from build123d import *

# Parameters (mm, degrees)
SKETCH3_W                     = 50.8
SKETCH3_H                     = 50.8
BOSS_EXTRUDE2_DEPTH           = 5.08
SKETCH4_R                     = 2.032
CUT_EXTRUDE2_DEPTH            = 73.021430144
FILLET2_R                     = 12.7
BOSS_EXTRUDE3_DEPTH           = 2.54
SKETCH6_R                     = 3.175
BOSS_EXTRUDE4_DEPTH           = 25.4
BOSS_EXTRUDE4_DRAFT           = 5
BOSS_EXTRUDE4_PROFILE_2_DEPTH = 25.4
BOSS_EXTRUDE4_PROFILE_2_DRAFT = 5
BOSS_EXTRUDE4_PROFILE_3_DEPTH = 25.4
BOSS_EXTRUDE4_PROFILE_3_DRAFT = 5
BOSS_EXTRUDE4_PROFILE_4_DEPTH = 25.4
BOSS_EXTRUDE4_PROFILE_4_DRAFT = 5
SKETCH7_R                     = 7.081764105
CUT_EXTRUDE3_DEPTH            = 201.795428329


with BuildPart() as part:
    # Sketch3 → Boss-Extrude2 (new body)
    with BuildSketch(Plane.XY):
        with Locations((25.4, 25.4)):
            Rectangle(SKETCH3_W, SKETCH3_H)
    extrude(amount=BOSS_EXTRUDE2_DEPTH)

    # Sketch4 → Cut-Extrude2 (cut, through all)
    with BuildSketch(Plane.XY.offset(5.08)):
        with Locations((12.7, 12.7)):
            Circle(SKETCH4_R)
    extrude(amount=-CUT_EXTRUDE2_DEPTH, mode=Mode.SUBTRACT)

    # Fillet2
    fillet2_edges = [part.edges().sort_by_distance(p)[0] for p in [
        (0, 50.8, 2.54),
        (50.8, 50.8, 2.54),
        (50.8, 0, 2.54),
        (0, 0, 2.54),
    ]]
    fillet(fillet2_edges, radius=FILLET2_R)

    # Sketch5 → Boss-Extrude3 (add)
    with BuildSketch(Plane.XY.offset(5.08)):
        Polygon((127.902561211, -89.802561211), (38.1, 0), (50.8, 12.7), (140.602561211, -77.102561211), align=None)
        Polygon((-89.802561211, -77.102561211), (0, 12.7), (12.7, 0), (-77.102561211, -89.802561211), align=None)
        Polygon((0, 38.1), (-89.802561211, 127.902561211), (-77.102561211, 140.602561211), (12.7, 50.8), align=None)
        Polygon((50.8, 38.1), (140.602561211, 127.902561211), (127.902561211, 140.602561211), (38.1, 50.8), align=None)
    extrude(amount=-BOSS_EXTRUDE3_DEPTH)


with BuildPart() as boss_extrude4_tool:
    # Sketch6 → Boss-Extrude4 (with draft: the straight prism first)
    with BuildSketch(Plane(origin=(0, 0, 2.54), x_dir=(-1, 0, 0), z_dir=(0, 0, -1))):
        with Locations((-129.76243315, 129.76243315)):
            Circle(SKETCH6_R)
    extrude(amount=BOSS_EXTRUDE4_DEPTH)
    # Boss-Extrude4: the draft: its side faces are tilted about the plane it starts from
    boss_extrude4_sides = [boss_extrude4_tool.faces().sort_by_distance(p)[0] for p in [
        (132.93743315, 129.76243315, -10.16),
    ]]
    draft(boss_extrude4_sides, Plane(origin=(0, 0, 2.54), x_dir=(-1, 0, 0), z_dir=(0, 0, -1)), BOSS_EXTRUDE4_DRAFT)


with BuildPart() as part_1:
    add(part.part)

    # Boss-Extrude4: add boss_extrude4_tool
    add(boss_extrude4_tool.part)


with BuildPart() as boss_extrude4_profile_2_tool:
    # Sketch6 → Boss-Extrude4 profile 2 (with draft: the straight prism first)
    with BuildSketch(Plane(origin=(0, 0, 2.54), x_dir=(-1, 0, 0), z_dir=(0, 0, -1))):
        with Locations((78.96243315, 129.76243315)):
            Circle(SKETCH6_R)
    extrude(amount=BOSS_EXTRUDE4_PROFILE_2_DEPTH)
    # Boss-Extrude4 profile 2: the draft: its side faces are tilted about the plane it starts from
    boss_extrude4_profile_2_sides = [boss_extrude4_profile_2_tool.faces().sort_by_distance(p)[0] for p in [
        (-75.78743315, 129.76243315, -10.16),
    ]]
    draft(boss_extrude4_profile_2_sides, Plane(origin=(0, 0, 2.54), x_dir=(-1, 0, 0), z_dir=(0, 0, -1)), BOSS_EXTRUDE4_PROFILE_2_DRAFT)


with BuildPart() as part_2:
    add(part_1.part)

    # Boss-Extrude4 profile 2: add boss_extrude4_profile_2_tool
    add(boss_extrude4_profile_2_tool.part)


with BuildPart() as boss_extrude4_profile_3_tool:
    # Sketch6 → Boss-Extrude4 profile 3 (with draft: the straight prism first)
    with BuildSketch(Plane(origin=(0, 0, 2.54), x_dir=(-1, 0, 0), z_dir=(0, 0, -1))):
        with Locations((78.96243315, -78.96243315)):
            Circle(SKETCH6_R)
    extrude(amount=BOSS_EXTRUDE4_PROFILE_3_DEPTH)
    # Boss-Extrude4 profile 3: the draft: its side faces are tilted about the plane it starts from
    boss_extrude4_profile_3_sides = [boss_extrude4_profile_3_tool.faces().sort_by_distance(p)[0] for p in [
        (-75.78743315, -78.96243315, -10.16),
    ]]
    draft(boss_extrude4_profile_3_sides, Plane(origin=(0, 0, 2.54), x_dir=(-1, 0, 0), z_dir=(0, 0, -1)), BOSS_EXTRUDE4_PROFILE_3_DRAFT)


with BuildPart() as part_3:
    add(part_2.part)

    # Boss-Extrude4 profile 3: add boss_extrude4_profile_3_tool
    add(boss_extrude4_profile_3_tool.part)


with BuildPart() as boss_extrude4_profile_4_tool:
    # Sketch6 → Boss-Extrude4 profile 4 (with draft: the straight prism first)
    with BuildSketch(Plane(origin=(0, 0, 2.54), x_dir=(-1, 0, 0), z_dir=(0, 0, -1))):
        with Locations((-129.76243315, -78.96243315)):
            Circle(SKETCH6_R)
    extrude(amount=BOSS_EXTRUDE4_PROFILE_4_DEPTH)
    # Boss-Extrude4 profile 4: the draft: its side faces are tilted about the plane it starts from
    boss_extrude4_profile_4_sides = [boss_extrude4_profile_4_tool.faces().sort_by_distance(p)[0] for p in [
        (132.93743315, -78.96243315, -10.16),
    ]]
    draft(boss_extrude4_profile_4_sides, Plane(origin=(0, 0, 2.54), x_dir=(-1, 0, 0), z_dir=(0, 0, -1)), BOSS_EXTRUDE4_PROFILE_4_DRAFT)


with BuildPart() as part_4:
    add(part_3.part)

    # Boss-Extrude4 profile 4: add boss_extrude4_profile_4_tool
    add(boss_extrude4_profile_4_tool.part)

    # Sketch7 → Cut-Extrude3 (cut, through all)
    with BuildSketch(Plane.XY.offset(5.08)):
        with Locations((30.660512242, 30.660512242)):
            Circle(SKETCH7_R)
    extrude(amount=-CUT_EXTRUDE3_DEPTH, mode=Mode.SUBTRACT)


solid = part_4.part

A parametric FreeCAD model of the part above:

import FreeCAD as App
import Part
import Sketcher

V = App.Vector
Q = App.Units.Quantity


def edges_at(feature, points):
    """Names of the edges that pass closest to the given points."""
    edges = feature.Shape.Edges
    near = lambda p: min(range(len(edges)), key=lambda i: edges[i].distToShape(Part.Vertex(*p))[0])
    return sorted({f"Edge{near(p) + 1}" for p in points})


def faces_at(feature, points):
    """Names of the faces that lie closest to the given points."""
    faces = feature.Shape.Faces
    near = lambda p: min(range(len(faces)), key=lambda i: faces[i].distToShape(Part.Vertex(*p))[0])
    return sorted({f"Face{near(p) + 1}" for p in points})


def add_polygon(sketch, points):
    """Adds a closed chain of lines whose ends are joined by coincident constraints."""
    first, n = sketch.GeometryCount, len(points)
    for a, b in zip(points, points[1:] + points[:1]):
        sketch.addGeometry(Part.LineSegment(App.Vector(*a, 0), App.Vector(*b, 0)), False)
    for i in range(n):
        sketch.addConstraint(Sketcher.Constraint("Coincident", first + i, 2, first + (i + 1) % n, 1))

doc = App.newDocument("Part")
params = doc.addObject("Spreadsheet::Sheet", "Params")
for row, (alias, value) in enumerate([
    ("sketch1_width", "2 in"),
    ("pad1_length", "0.2 in"),
    ("sketch2_diameter", "0.16 in"),
    ("fillet_radius", "0.5 in"),
    ("sketch3_length", "5 in"),
    ("pad2_length", "0.1 in"),
    ("sketch4_diameter", "0.25 in"),
    ("pad3_length", "1 in"),
    ("draft_angle", "5 deg"),
    ("sketch5_diameter", "0.25 in"),
    ("pad4_length", "1 in"),
    ("draft2_angle", "5 deg"),
    ("sketch6_diameter", "0.25 in"),
    ("pad5_length", "1 in"),
    ("draft3_angle", "5 deg"),
    ("sketch7_diameter", "0.25 in"),
    ("pad6_length", "1 in"),
    ("draft4_angle", "5 deg"),
], start=1):
    params.set(f"A{row}", alias)
    params.set(f"B{row}", "=" + value)
    params.setAlias(f"B{row}", alias)

body = doc.addObject("PartDesign::Body", "Body")

sketch1 = body.newObject("Sketcher::SketchObject", "Sketch")
sketch1.AttachmentSupport = (doc.getObject("XY_Plane"), [""])
sketch1.MapMode = "FlatFace"
add_polygon(sketch1, [(0, 51), (0, 0), (51, 0), (51, 51)])
sketch1.addConstraint(Sketcher.Constraint("Vertical", 0))
sketch1.addConstraint(Sketcher.Constraint("Horizontal", 1))
sketch1.addConstraint(Sketcher.Constraint("Vertical", 2))
sketch1.addConstraint(Sketcher.Constraint("Horizontal", 3))
sketch1.addConstraint(Sketcher.Constraint("Coincident", 0, 2, -1, 1))
sketch1.addConstraint(Sketcher.Constraint("Equal", 3, 0))
sketch1.addConstraint(Sketcher.Constraint("DistanceX", 1, 1, 1, 2, Q("2 in")))
sketch1.setExpression("Constraints[10]", "Params.sketch1_width")
pad1 = body.newObject("PartDesign::Pad", "Pad")
pad1.Profile = sketch1
pad1.setExpression("Length", "Params.pad1_length")

sketch2 = body.newObject("Sketcher::SketchObject", "Sketch001")
sketch2.AttachmentSupport = (doc.getObject("XY_Plane"), [""])
sketch2.MapMode = "FlatFace"
sketch2.AttachmentOffset = App.Placement(V(0, 0, 0.2 * 25.4), App.Rotation())
sketch2.addGeometry(Part.Circle(V(12.7, 12.7, 0), V(0, 0, 1), 2), False)
sketch2.addConstraint(Sketcher.Constraint("Diameter", 0, Q("0.16 in")))
sketch2.addConstraint(Sketcher.Constraint("DistanceX", -1, 1, 0, 3, Q("0.5 in")))
sketch2.addConstraint(Sketcher.Constraint("DistanceY", -1, 1, 0, 3, Q("0.5 in")))
sketch2.setExpression("Constraints[0]", "Params.sketch2_diameter")
pocket1 = body.newObject("PartDesign::Pocket", "Pocket")
pocket1.Profile = sketch2
pocket1.Type = "ThroughAll"
doc.recompute()

fillet = body.newObject("PartDesign::Fillet", "Fillet")
fillet.Base = (pocket1, edges_at(pocket1, [
    (0, 50.8, 2.54),
    (50.8, 50.8, 2.54),
    (50.8, 0, 2.54),
    (0, 0, 2.54),
]))
fillet.setExpression("Radius", "Params.fillet_radius")

sketch3 = body.newObject("Sketcher::SketchObject", "Sketch002")
sketch3.AttachmentSupport = (doc.getObject("XY_Plane"), [""])
sketch3.MapMode = "FlatFace"
sketch3.AttachmentOffset = App.Placement(V(0, 0, 0.2 * 25.4), App.Rotation())
add_polygon(sketch3, [(38, 0), (128, -90), (141, -77), (51, 13)])
add_polygon(sketch3, [(0, 13), (-90, -77), (-77, -90), (13, 0)])
add_polygon(sketch3, [(-90, 128), (0, 38), (13, 51), (-77, 141)])
add_polygon(sketch3, [(51, 38), (141, 128), (128, 141), (38, 51)])
sketch3.addConstraint(Sketcher.Constraint("PointOnObject", 3, 2, -1))
sketch3.addConstraint(Sketcher.Constraint("PointOnObject", 6, 2, -1))
sketch3.addConstraint(Sketcher.Constraint("PointOnObject", 7, 2, -2))
sketch3.addConstraint(Sketcher.Constraint("PointOnObject", 8, 2, -2))
sketch3.addConstraint(Sketcher.Constraint("Perpendicular", 0, 1))
sketch3.addConstraint(Sketcher.Constraint("Perpendicular", 1, 2))
sketch3.addConstraint(Sketcher.Constraint("Perpendicular", 2, 3))
sketch3.addConstraint(Sketcher.Constraint("Parallel", 3, 4))
sketch3.addConstraint(Sketcher.Constraint("Perpendicular", 4, 5))
sketch3.addConstraint(Sketcher.Constraint("Perpendicular", 5, 6))
sketch3.addConstraint(Sketcher.Constraint("Perpendicular", 6, 7))
sketch3.addConstraint(Sketcher.Constraint("Parallel", 7, 8))
sketch3.addConstraint(Sketcher.Constraint("Perpendicular", 8, 9))
sketch3.addConstraint(Sketcher.Constraint("Perpendicular", 9, 10))
sketch3.addConstraint(Sketcher.Constraint("Perpendicular", 10, 11))
sketch3.addConstraint(Sketcher.Constraint("Parallel", 11, 12))
sketch3.addConstraint(Sketcher.Constraint("Perpendicular", 12, 13))
sketch3.addConstraint(Sketcher.Constraint("Perpendicular", 13, 14))
sketch3.addConstraint(Sketcher.Constraint("Perpendicular", 14, 15))
sketch3.addConstraint(Sketcher.Constraint("Horizontal", 1, 2, 4, 2))
sketch3.addConstraint(Sketcher.Constraint("Horizontal", 0, 2, 5, 2))
sketch3.addConstraint(Sketcher.Constraint("Horizontal", 11, 2, 12, 2))
sketch3.addConstraint(Sketcher.Constraint("Horizontal", 10, 2, 13, 2))
sketch3.addConstraint(Sketcher.Constraint("Horizontal", 9, 2, 14, 2))
sketch3.addConstraint(Sketcher.Constraint("Vertical", 6, 2, 9, 2))
sketch3.addConstraint(Sketcher.Constraint("Vertical", 5, 2, 10, 2))
sketch3.addConstraint(Sketcher.Constraint("Vertical", 1, 2, 12, 2))
sketch3.addConstraint(Sketcher.Constraint("Vertical", 0, 2, 13, 2))
sketch3.addConstraint(Sketcher.Constraint("Distance", 0, Q("5 in")))
sketch3.addConstraint(Sketcher.Constraint("DistanceX", -1, 1, 2, 2, Q("2 in")))
sketch3.addConstraint(Sketcher.Constraint("DistanceY", -1, 1, 9, 2, Q("2 in")))
sketch3.addConstraint(Sketcher.Constraint("DistanceX", 6, 2, 3, 2, Q("1 in")))
sketch3.setExpression("Constraints[44]", "Params.sketch3_length")
pad2 = body.newObject("PartDesign::Pad", "Pad001")
pad2.Profile = sketch3
pad2.setExpression("Length", "Params.pad2_length")
pad2.Reversed = True
body2 = doc.addObject("PartDesign::Body", "Body001")

sketch4 = body2.newObject("Sketcher::SketchObject", "Sketch003")
sketch4.AttachmentSupport = (doc.getObject("XY_Plane001"), [""])
sketch4.MapMode = "FlatFace"
sketch4.AttachmentOffset = App.Placement(V(0, 0, 0.1 * 25.4), App.Rotation())
sketch4.addGeometry(Part.Circle(V(129.8, 129.8, 0), V(0, 0, 1), 3.2), False)
sketch4.addConstraint(Sketcher.Constraint("Diameter", 0, Q("0.25 in")))
sketch4.addConstraint(Sketcher.Constraint("DistanceX", -1, 1, 0, 3, 129.762433))
sketch4.addConstraint(Sketcher.Constraint("DistanceY", -1, 1, 0, 3, 129.762433))
sketch4.setExpression("Constraints[0]", "Params.sketch4_diameter")
pad3 = body2.newObject("PartDesign::Pad", "Pad002")
pad3.Profile = sketch4
pad3.setExpression("Length", "Params.pad3_length")
pad3.Reversed = True
doc.recompute()

datumplane = body2.newObject("PartDesign::Plane", "DatumPlane")
datumplane.AttachmentSupport = (doc.getObject("XY_Plane001"), [""])
datumplane.MapMode = "FlatFace"
datumplane.AttachmentOffset = App.Placement(V(0, 0, 0.1 * 25.4), App.Rotation())
draft = body2.newObject("PartDesign::Draft", "Draft")
draft.Base = (pad3, faces_at(pad3, [(132.937, 129.762, -10.16)]))
draft.NeutralPlane = (datumplane, [""])
draft.setExpression("Angle", "Params.draft_angle")
draft.Reversed = True
doc.recompute()

boolean = body.newObject("PartDesign::Boolean", "Boolean")
boolean.Type = "Fuse"
boolean.addObjects([body2])
body3 = doc.addObject("PartDesign::Body", "Body002")

sketch5 = body3.newObject("Sketcher::SketchObject", "Sketch004")
sketch5.AttachmentSupport = (doc.getObject("XY_Plane002"), [""])
sketch5.MapMode = "FlatFace"
sketch5.AttachmentOffset = App.Placement(V(0, 0, 0.1 * 25.4), App.Rotation())
sketch5.addGeometry(Part.Circle(V(-79, 129.8, 0), V(0, 0, 1), 3.2), False)
sketch5.addConstraint(Sketcher.Constraint("Diameter", 0, Q("0.25 in")))
sketch5.addConstraint(Sketcher.Constraint("DistanceX", 0, 3, -1, 1, 78.962433))
sketch5.addConstraint(Sketcher.Constraint("DistanceY", -1, 1, 0, 3, 129.762433))
sketch5.setExpression("Constraints[0]", "Params.sketch5_diameter")
pad4 = body3.newObject("PartDesign::Pad", "Pad003")
pad4.Profile = sketch5
pad4.setExpression("Length", "Params.pad4_length")
pad4.Reversed = True
doc.recompute()

datumplane2 = body3.newObject("PartDesign::Plane", "DatumPlane001")
datumplane2.AttachmentSupport = (doc.getObject("XY_Plane002"), [""])
datumplane2.MapMode = "FlatFace"
datumplane2.AttachmentOffset = App.Placement(V(0, 0, 0.1 * 25.4), App.Rotation())
draft2 = body3.newObject("PartDesign::Draft", "Draft001")
draft2.Base = (pad4, faces_at(pad4, [(-75.787, 129.762, -10.16)]))
draft2.NeutralPlane = (datumplane2, [""])
draft2.setExpression("Angle", "Params.draft2_angle")
draft2.Reversed = True
doc.recompute()

boolean2 = body.newObject("PartDesign::Boolean", "Boolean001")
boolean2.Type = "Fuse"
boolean2.addObjects([body3])
body4 = doc.addObject("PartDesign::Body", "Body003")

sketch6 = body4.newObject("Sketcher::SketchObject", "Sketch005")
sketch6.AttachmentSupport = (doc.getObject("XY_Plane003"), [""])
sketch6.MapMode = "FlatFace"
sketch6.AttachmentOffset = App.Placement(V(0, 0, 0.1 * 25.4), App.Rotation())
sketch6.addGeometry(Part.Circle(V(-79, -79, 0), V(0, 0, 1), 3.2), False)
sketch6.addConstraint(Sketcher.Constraint("Diameter", 0, Q("0.25 in")))
sketch6.addConstraint(Sketcher.Constraint("DistanceX", 0, 3, -1, 1, 78.962433))
sketch6.addConstraint(Sketcher.Constraint("DistanceY", 0, 3, -1, 1, 78.962433))
sketch6.setExpression("Constraints[0]", "Params.sketch6_diameter")
pad5 = body4.newObject("PartDesign::Pad", "Pad004")
pad5.Profile = sketch6
pad5.setExpression("Length", "Params.pad5_length")
pad5.Reversed = True
doc.recompute()

datumplane3 = body4.newObject("PartDesign::Plane", "DatumPlane002")
datumplane3.AttachmentSupport = (doc.getObject("XY_Plane003"), [""])
datumplane3.MapMode = "FlatFace"
datumplane3.AttachmentOffset = App.Placement(V(0, 0, 0.1 * 25.4), App.Rotation())
draft3 = body4.newObject("PartDesign::Draft", "Draft002")
draft3.Base = (pad5, faces_at(pad5, [(-75.787, -78.962, -10.16)]))
draft3.NeutralPlane = (datumplane3, [""])
draft3.setExpression("Angle", "Params.draft3_angle")
draft3.Reversed = True
doc.recompute()

boolean3 = body.newObject("PartDesign::Boolean", "Boolean002")
boolean3.Type = "Fuse"
boolean3.addObjects([body4])
body5 = doc.addObject("PartDesign::Body", "Body004")

sketch7 = body5.newObject("Sketcher::SketchObject", "Sketch006")
sketch7.AttachmentSupport = (doc.getObject("XY_Plane004"), [""])
sketch7.MapMode = "FlatFace"
sketch7.AttachmentOffset = App.Placement(V(0, 0, 0.1 * 25.4), App.Rotation())
sketch7.addGeometry(Part.Circle(V(129.8, -79, 0), V(0, 0, 1), 3.2), False)
sketch7.addConstraint(Sketcher.Constraint("Diameter", 0, Q("0.25 in")))
sketch7.addConstraint(Sketcher.Constraint("DistanceX", -1, 1, 0, 3, 129.762433))
sketch7.addConstraint(Sketcher.Constraint("DistanceY", 0, 3, -1, 1, 78.962433))
sketch7.setExpression("Constraints[0]", "Params.sketch7_diameter")
pad6 = body5.newObject("PartDesign::Pad", "Pad005")
pad6.Profile = sketch7
pad6.setExpression("Length", "Params.pad6_length")
pad6.Reversed = True
doc.recompute()

datumplane4 = body5.newObject("PartDesign::Plane", "DatumPlane003")
datumplane4.AttachmentSupport = (doc.getObject("XY_Plane004"), [""])
datumplane4.MapMode = "FlatFace"
datumplane4.AttachmentOffset = App.Placement(V(0, 0, 0.1 * 25.4), App.Rotation())
draft4 = body5.newObject("PartDesign::Draft", "Draft003")
draft4.Base = (pad6, faces_at(pad6, [(132.937, -78.962, -10.16)]))
draft4.NeutralPlane = (datumplane4, [""])
draft4.setExpression("Angle", "Params.draft4_angle")
draft4.Reversed = True
doc.recompute()

boolean4 = body.newObject("PartDesign::Boolean", "Boolean003")
boolean4.Type = "Fuse"
boolean4.addObjects([body5])

sketch8 = body.newObject("Sketcher::SketchObject", "Sketch007")
sketch8.AttachmentSupport = (doc.getObject("XY_Plane"), [""])
sketch8.MapMode = "FlatFace"
sketch8.AttachmentOffset = App.Placement(V(0, 0, 0.2 * 25.4), App.Rotation())
sketch8.addGeometry(Part.Circle(V(31, 31, 0), V(0, 0, 1), 7), False)
sketch8.addConstraint(Sketcher.Constraint("Diameter", 0, 14.163528))
sketch8.addConstraint(Sketcher.Constraint("DistanceX", -1, 1, 0, 3, 30.660512))
sketch8.addConstraint(Sketcher.Constraint("DistanceY", -1, 1, 0, 3, 30.660512))
pocket2 = body.newObject("PartDesign::Pocket", "Pocket001")
pocket2.Profile = sketch8
pocket2.Type = "ThroughAll"

doc.recompute()
